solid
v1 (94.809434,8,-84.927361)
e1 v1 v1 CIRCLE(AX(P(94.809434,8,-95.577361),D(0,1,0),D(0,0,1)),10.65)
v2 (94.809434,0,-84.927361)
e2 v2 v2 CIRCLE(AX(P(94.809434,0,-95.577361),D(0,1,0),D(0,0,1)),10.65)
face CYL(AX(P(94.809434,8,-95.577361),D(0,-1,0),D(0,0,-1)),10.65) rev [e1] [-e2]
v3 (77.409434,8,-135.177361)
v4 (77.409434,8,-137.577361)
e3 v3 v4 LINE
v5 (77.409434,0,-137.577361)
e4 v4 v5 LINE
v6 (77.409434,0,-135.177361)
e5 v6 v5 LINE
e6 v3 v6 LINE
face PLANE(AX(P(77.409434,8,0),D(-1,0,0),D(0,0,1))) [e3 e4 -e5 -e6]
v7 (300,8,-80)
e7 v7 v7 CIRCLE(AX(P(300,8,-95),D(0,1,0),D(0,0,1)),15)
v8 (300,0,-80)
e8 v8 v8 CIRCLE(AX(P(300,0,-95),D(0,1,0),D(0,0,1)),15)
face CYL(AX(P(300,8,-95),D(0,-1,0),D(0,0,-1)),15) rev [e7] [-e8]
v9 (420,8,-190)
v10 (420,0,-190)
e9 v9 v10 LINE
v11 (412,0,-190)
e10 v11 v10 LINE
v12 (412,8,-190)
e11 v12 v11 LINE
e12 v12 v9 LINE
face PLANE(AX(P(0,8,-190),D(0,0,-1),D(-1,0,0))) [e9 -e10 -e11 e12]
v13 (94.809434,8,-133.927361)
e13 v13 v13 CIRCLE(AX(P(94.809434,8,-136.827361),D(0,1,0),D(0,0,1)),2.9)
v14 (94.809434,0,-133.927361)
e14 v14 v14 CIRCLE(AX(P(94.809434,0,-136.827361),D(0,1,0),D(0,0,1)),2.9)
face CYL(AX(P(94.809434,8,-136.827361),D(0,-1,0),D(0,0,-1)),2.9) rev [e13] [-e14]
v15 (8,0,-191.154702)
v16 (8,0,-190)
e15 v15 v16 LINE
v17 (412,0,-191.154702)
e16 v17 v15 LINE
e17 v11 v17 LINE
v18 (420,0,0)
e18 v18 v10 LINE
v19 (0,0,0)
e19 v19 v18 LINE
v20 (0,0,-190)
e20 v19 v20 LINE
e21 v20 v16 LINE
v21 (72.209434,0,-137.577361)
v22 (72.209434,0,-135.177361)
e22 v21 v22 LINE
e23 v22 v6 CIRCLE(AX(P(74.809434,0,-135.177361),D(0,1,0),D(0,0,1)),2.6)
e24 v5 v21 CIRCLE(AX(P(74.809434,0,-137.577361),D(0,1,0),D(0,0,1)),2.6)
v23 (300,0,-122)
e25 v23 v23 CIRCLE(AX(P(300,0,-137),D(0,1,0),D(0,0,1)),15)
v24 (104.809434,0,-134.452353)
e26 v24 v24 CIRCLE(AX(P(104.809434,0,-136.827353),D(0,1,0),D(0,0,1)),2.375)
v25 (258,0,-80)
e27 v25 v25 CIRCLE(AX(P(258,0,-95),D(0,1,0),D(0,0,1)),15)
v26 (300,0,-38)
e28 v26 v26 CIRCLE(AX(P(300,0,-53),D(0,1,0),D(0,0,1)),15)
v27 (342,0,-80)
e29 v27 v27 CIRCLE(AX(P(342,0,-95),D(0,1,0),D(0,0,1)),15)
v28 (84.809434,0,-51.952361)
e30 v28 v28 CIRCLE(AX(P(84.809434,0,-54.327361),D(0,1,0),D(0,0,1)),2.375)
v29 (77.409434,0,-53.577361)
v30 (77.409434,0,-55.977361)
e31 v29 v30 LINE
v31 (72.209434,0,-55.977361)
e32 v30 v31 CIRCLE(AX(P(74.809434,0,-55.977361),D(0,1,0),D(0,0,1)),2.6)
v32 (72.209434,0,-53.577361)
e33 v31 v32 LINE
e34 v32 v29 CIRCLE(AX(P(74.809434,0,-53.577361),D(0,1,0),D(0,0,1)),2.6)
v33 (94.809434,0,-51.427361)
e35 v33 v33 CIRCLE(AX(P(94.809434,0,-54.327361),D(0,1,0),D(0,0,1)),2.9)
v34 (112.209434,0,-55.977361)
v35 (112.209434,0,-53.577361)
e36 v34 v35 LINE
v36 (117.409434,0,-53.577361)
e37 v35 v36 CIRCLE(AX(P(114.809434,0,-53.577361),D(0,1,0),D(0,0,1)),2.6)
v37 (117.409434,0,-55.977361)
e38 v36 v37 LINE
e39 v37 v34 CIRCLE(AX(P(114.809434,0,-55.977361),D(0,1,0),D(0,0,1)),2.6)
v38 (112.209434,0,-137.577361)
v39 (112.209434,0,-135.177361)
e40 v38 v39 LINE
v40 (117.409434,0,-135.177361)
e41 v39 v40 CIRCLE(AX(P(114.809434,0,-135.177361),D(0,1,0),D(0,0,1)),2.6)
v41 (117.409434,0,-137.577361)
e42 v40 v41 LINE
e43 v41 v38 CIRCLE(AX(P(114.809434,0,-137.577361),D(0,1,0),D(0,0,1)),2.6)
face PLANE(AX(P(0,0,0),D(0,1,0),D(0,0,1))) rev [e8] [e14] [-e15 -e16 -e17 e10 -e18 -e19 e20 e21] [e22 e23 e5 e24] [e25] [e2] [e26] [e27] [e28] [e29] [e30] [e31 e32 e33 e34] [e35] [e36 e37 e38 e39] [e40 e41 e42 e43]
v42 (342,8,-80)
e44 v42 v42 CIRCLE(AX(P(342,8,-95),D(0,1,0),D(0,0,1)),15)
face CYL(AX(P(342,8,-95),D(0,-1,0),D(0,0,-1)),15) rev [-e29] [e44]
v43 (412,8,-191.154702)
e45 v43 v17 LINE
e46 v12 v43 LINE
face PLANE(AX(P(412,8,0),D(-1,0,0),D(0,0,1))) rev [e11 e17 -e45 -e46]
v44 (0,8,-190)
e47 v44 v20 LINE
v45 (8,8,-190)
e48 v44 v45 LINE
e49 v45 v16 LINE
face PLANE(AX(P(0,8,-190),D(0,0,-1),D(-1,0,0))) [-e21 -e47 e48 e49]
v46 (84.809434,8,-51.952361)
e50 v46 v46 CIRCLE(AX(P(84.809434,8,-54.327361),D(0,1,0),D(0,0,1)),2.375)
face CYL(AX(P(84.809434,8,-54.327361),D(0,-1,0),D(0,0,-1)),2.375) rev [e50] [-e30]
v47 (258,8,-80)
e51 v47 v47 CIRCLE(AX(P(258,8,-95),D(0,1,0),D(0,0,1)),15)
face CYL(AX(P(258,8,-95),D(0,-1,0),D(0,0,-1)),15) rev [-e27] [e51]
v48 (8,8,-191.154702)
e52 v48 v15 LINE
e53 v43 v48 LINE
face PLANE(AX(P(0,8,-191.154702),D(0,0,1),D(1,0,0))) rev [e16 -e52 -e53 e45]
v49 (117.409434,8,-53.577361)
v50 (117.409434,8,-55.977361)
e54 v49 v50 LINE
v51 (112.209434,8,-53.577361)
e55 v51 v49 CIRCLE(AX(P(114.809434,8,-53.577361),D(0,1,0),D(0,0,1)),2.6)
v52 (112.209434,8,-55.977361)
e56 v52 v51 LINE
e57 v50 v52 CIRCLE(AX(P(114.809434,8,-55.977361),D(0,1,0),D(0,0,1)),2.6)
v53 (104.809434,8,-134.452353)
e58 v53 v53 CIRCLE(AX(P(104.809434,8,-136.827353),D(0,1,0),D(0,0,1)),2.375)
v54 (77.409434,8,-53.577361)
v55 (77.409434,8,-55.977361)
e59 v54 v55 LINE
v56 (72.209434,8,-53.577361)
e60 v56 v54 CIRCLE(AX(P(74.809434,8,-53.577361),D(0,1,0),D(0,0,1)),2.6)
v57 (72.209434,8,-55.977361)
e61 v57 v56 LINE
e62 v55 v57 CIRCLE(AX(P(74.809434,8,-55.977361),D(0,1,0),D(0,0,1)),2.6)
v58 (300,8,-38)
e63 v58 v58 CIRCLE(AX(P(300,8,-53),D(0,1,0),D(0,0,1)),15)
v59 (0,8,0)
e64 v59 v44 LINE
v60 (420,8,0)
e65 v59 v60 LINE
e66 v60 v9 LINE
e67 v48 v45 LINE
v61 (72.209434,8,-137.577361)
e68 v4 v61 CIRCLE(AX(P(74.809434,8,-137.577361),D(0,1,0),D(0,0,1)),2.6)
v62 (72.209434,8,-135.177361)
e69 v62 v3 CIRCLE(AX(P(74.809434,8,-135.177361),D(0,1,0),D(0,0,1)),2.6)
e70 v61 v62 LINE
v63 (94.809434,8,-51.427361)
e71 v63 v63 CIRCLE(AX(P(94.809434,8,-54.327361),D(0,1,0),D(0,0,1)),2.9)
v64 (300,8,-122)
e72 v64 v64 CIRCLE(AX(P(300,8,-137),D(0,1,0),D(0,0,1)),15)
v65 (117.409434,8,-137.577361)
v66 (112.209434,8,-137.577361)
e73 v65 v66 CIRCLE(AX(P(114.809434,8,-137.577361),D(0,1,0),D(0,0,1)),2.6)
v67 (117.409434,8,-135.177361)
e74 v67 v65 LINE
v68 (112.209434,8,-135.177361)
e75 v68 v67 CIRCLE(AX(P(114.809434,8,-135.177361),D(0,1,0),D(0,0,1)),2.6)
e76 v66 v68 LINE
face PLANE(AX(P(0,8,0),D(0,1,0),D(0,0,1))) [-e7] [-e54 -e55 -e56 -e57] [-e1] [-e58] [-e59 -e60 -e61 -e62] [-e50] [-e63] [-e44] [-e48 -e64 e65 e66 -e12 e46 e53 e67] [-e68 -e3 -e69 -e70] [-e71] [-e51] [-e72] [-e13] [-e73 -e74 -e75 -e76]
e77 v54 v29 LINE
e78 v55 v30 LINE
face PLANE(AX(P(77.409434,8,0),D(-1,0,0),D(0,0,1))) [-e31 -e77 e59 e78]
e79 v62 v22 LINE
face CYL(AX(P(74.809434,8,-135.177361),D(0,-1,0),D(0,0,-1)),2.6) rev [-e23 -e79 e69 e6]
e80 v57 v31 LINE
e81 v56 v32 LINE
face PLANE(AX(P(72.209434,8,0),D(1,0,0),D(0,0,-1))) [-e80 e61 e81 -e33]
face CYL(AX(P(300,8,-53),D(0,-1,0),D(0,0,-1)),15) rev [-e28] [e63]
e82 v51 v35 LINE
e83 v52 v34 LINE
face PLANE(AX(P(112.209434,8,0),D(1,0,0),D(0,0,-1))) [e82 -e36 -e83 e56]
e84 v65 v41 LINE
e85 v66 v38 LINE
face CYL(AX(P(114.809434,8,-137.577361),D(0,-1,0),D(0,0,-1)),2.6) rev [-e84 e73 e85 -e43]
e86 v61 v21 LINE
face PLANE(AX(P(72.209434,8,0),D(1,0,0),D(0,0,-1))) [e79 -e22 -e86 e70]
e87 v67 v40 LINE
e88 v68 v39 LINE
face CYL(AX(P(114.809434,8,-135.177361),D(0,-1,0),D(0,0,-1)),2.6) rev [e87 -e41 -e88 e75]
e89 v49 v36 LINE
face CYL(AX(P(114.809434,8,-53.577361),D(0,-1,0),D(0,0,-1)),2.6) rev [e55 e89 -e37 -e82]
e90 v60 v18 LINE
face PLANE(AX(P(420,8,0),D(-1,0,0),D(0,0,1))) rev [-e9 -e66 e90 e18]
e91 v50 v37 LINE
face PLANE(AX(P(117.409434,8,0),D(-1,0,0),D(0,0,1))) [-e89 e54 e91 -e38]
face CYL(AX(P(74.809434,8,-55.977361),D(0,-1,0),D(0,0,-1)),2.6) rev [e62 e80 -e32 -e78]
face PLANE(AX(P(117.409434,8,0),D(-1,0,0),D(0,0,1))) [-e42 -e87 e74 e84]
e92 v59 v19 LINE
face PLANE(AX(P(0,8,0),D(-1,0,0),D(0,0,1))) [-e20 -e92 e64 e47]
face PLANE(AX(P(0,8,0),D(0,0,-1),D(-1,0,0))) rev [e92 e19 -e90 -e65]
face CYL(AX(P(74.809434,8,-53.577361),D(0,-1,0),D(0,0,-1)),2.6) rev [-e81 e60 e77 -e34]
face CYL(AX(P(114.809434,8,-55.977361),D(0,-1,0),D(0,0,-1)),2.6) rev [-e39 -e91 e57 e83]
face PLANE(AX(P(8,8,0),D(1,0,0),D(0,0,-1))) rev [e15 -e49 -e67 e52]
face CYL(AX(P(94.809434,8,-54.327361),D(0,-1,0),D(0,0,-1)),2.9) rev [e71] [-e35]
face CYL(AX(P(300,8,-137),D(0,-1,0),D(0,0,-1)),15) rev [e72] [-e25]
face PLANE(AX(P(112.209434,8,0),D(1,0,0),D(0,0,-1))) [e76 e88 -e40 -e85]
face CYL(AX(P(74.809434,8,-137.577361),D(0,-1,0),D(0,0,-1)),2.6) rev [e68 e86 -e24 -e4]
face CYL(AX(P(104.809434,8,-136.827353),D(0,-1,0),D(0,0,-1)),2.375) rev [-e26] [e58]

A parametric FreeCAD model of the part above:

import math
import FreeCAD as App
import Part
import Sketcher
from FreeCAD import Vector


def add_polygon(sketch, points):
    """Adds a closed chain of lines whose ends are joined by coincident constraints."""
    first, n = sketch.GeometryCount, len(points)
    for a, b in zip(points, points[1:] + points[:1]):
        sketch.addGeometry(Part.LineSegment(App.Vector(*a, 0), App.Vector(*b, 0)), False)
    for i in range(n):
        sketch.addConstraint(Sketcher.Constraint("Coincident", first + i, 2, first + (i + 1) % n, 1))

doc = App.newDocument("Part")
params = doc.addObject("Spreadsheet::Sheet", "Params")
for row, (alias, value) in enumerate([
    ("sketch1_diameter", "30 mm"),
    ("sketch1_diameter2", "5.8 mm"),
    ("sketch1_diameter3", "21.3 mm"),
    ("sketch1_radius", "2.6 mm"),
    ("sketch1_diameter4", "4.75 mm"),
    ("pad1_length", "8 mm"),
], start=1):
    params.set(f"A{row}", alias)
    params.set(f"B{row}", "=" + value)
    params.setAlias(f"B{row}", alias)

body = doc.addObject("PartDesign::Body", "Body")

# Sketch on XZ plane
sketch1 = body.newObject("Sketcher::SketchObject", "Sketch")
sketch1.AttachmentSupport = (doc.getObject("XZ_Plane"), [""])
sketch1.MapMode = "FlatFace"
add_polygon(sketch1, [(8, -191.2), (8, -190), (0, -190), (0, 0), (420, 0), (420, -190), (412, -190), (412, -191.2)])  # lines 0-7
sketch1.addGeometry(Part.ArcOfCircle(Part.Circle(Vector(74.8, -53.6, 0), Vector(0, 0, 1), 2.6), math.radians(0), math.radians(180)), False)  # 8
sketch1.addGeometry(Part.LineSegment(Vector(72.2, -53.6, 0), Vector(72.2, -56, 0)), False)  # 9
sketch1.addGeometry(Part.ArcOfCircle(Part.Circle(Vector(74.8, -56, 0), Vector(0, 0, 1), 2.6), math.radians(180), math.radians(360)), False)  # 10
sketch1.addGeometry(Part.LineSegment(Vector(77.4, -56, 0), Vector(77.4, -53.6, 0)), False)  # 11
sketch1.addGeometry(Part.Circle(Vector(84.8, -54.3, 0), Vector(0, 0, 1), 2.4), False)  # 12
sketch1.addGeometry(Part.Circle(Vector(94.8, -54.3, 0), Vector(0, 0, 1), 2.9), False)  # 13
sketch1.addGeometry(Part.ArcOfCircle(Part.Circle(Vector(114.8, -53.6, 0), Vector(0, 0, 1), 2.6), math.radians(0), math.radians(180)), False)  # 14
sketch1.addGeometry(Part.LineSegment(Vector(112.2, -53.6, 0), Vector(112.2, -56, 0)), False)  # 15
sketch1.addGeometry(Part.ArcOfCircle(Part.Circle(Vector(114.8, -56, 0), Vector(0, 0, 1), 2.6), math.radians(180), math.radians(360)), False)  # 16
sketch1.addGeometry(Part.LineSegment(Vector(117.4, -56, 0), Vector(117.4, -53.6, 0)), False)  # 17
sketch1.addGeometry(Part.Circle(Vector(300, -53, 0), Vector(0, 0, 1), 15), False)  # 18
sketch1.addGeometry(Part.Circle(Vector(94.8, -95.6, 0), Vector(0, 0, 1), 10.7), False)  # 19
sketch1.addGeometry(Part.ArcOfCircle(Part.Circle(Vector(74.8, -137.6, 0), Vector(0, 0, 1), 2.6), math.radians(180), math.radians(360)), False)  # 20
sketch1.addGeometry(Part.LineSegment(Vector(77.4, -137.6, 0), Vector(77.4, -135.2, 0)), False)  # 21
sketch1.addGeometry(Part.ArcOfCircle(Part.Circle(Vector(74.8, -135.2, 0), Vector(0, 0, 1), 2.6), math.radians(0), math.radians(180)), False)  # 22
sketch1.addGeometry(Part.LineSegment(Vector(72.2, -135.2, 0), Vector(72.2, -137.6, 0)), False)  # 23
sketch1.addGeometry(Part.Circle(Vector(94.8, -136.8, 0), Vector(0, 0, 1), 2.9), False)  # 24
sketch1.addGeometry(Part.Circle(Vector(104.8, -136.8, 0), Vector(0, 0, 1), 2.4), False)  # 25
sketch1.addGeometry(Part.ArcOfCircle(Part.Circle(Vector(114.8, -135.2, 0), Vector(0, 0, 1), 2.6), math.radians(0), math.radians(180)), False)  # 26
sketch1.addGeometry(Part.LineSegment(Vector(112.2, -135.2, 0), Vector(112.2, -137.6, 0)), False)  # 27
sketch1.addGeometry(Part.ArcOfCircle(Part.Circle(Vector(114.8, -137.6, 0), Vector(0, 0, 1), 2.6), math.radians(180), math.radians(360)), False)  # 28
sketch1.addGeometry(Part.LineSegment(Vector(117.4, -137.6, 0), Vector(117.4, -135.2, 0)), False)  # 29
sketch1.addGeometry(Part.Circle(Vector(258, -95, 0), Vector(0, 0, 1), 15), False)  # 30
sketch1.addGeometry(Part.Circle(Vector(300, -95, 0), Vector(0, 0, 1), 15), False)  # 31
sketch1.addGeometry(Part.Circle(Vector(342, -95, 0), Vector(0, 0, 1), 15), False)  # 32
sketch1.addGeometry(Part.Circle(Vector(300, -137, 0), Vector(0, 0, 1), 15), False)  # 33
sketch1.addConstraint([
    Sketcher.Constraint("Tangent", 8, 2, 9, 1),
    Sketcher.Constraint("Tangent", 9, 2, 10, 1),
    Sketcher.Constraint("Tangent", 10, 2, 11, 1),
    Sketcher.Constraint("Tangent", 11, 2, 8, 1),
    Sketcher.Constraint("Tangent", 14, 2, 15, 1),
    Sketcher.Constraint("Tangent", 15, 2, 16, 1),
    Sketcher.Constraint("Tangent", 16, 2, 17, 1),
    Sketcher.Constraint("Tangent", 17, 2, 14, 1),
    Sketcher.Constraint("Tangent", 20, 2, 21, 1),
    Sketcher.Constraint("Tangent", 21, 2, 22, 1),
    Sketcher.Constraint("Tangent", 22, 2, 23, 1),
    Sketcher.Constraint("Tangent", 23, 2, 20, 1),
    Sketcher.Constraint("Tangent", 26, 2, 27, 1),
    Sketcher.Constraint("Tangent", 27, 2, 28, 1),
    Sketcher.Constraint("Tangent", 28, 2, 29, 1),
    Sketcher.Constraint("Tangent", 29, 2, 26, 1),
    Sketcher.Constraint("Vertical", 0),
    Sketcher.Constraint("Horizontal", 1),
    Sketcher.Constraint("Vertical", 2),
    Sketcher.Constraint("Horizontal", 3),
    Sketcher.Constraint("Vertical", 4),
    Sketcher.Constraint("Horizontal", 5),
    Sketcher.Constraint("Vertical", 6),
    Sketcher.Constraint("Horizontal", 7),
    Sketcher.Constraint("Vertical", 9),
    Sketcher.Constraint("Vertical", 11),
    Sketcher.Constraint("Vertical", 15),
    Sketcher.Constraint("Vertical", 17),
    Sketcher.Constraint("Vertical", 21),
    Sketcher.Constraint("Vertical", 23),
    Sketcher.Constraint("Vertical", 27),
    Sketcher.Constraint("Vertical", 29),
    Sketcher.Constraint("Coincident", 2, 2, -1, 1),
    Sketcher.Constraint("Equal", 10, 14),
    Sketcher.Constraint("Equal", 16, 20),
    Sketcher.Constraint("Equal", 13, 24),
    Sketcher.Constraint("Equal", 12, 25),
    Sketcher.Constraint("Equal", 22, 26),
    Sketcher.Constraint("Equal", 18, 30),
    Sketcher.Constraint("Equal", 30, 31),
    Sketcher.Constraint("Equal", 31, 32),
    Sketcher.Constraint("Equal", 32, 33),
    Sketcher.Constraint("Horizontal", 12, 3, 13, 3),
    Sketcher.Constraint("Horizontal", 8, 3, 14, 3),
    Sketcher.Constraint("Horizontal", 10, 3, 16, 3),
    Sketcher.Constraint("Horizontal", 22, 3, 26, 3),
    Sketcher.Constraint("Horizontal", 20, 3, 28, 3),
    Sketcher.Constraint("Horizontal", 30, 3, 31, 3),
    Sketcher.Constraint("Horizontal", 31, 3, 32, 3),
    Sketcher.Constraint("Horizontal", 1, 2, 4, 2),
    Sketcher.Constraint("Vertical", 13, 3, 19, 3),
    Sketcher.Constraint("Vertical", 10, 3, 20, 3),
    Sketcher.Constraint("Vertical", 19, 3, 24, 3),
    Sketcher.Constraint("Vertical", 16, 3, 26, 3),
    Sketcher.Constraint("Vertical", 18, 3, 31, 3),
    Sketcher.Constraint("Vertical", 31, 3, 33, 3),
    Sketcher.Constraint("Equal", 1, 5),
    Sketcher.Constraint("Equal", 17, 21),
    Sketcher.Constraint("Diameter", 18, 30.0),
    Sketcher.Constraint("Diameter", 13, 5.8),
    Sketcher.Constraint("Diameter", 19, 21.3),
    Sketcher.Constraint("Radius", 8, 2.6),
    Sketcher.Constraint("Diameter", 12, 4.75),
    Sketcher.Constraint("DistanceX", 1, 2, 1, 1, 8.0),
    Sketcher.Constraint("DistanceX", 3, 1, 3, 2, 420.0),
    Sketcher.Constraint("DistanceY", 2, 1, 2, 2, 190.0),
    Sketcher.Constraint("DistanceY", 9, 2, 9, 1, 2.4),
    Sketcher.Constraint("DistanceX", -1, 1, 18, 3, 300.0),
    Sketcher.Constraint("DistanceY", 18, 3, -1, 1, 53.0),
    Sketcher.Constraint("DistanceX", -1, 1, 30, 3, 258.0),
    Sketcher.Constraint("DistanceY", 30, 3, -1, 1, 95.0),
    Sketcher.Constraint("DistanceX", -1, 1, 32, 3, 342.0),
    Sketcher.Constraint("DistanceY", 33, 3, -1, 1, 137.0),
    Sketcher.Constraint("DistanceX", 8, 3, 12, 3, 10.0),
    Sketcher.Constraint("DistanceX", 12, 3, 13, 3, 10.0),
    Sketcher.Constraint("DistanceX", 13, 3, 14, 3, 20.0),
    Sketcher.Constraint("DistanceY", 19, 3, 8, 3, 42.0),
    Sketcher.Constraint("DistanceY", 20, 3, 19, 3, 42.0),
    Sketcher.Constraint("DistanceX", 24, 3, 25, 3, 10.0),
    Sketcher.Constraint("DistanceY", 24, 3, 13, 3, 82.5),
    Sketcher.Constraint("DistanceY", 12, 3, 8, 3, 0.75),
    Sketcher.Constraint("DistanceY", 0, 1, 0, 2, 1.154702),
    Sketcher.Constraint("DistanceY", 8, 3, -1, 1, 53.577361),
    Sketcher.Constraint("DistanceX", -1, 1, 8, 3, 74.809434),
    Sketcher.Constraint("DistanceY", 25, 3, -1, 1, 136.827353),
])
sketch1.setExpression("Constraints[66]", "Params.sketch1_diameter")
sketch1.setExpression("Constraints[67]", "Params.sketch1_diameter2")
sketch1.setExpression("Constraints[68]", "Params.sketch1_diameter3")
sketch1.setExpression("Constraints[69]", "Params.sketch1_radius")
sketch1.setExpression("Constraints[70]", "Params.sketch1_diameter4")
pad1 = body.newObject("PartDesign::Pad", "Pad")
pad1.Profile = sketch1
pad1.setExpression("Length", "Params.pad1_length")
pad1.Reversed = True

doc.recompute()
